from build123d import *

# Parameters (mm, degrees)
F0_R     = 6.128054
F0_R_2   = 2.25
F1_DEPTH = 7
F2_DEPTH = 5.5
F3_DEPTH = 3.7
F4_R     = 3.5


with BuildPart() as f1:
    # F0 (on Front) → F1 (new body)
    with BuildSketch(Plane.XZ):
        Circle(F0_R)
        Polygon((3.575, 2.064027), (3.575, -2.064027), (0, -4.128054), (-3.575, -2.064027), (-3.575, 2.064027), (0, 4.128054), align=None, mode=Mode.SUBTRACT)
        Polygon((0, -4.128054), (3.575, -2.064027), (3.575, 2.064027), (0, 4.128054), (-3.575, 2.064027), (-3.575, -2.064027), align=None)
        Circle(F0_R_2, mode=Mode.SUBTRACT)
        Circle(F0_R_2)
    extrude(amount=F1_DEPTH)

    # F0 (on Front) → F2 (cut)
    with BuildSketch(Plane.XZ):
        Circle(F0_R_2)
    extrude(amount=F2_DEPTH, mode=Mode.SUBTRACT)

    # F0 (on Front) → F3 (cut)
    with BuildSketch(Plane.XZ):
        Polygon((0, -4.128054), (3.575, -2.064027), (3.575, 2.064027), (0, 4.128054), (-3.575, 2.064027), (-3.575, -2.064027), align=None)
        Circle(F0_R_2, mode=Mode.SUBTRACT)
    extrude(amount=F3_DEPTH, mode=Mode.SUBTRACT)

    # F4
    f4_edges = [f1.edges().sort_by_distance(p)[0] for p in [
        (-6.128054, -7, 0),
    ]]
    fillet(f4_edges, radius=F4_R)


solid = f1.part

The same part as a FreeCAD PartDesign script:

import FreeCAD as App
import Part
import Sketcher
Q = App.Units.Quantity


def edges_at(feature, points):
    """Names of the edges that pass closest to the given points."""
    edges = feature.Shape.Edges
    near = lambda p: min(range(len(edges)), key=lambda i: edges[i].distToShape(Part.Vertex(*p))[0])
    return sorted({f"Edge{near(p) + 1}" for p in points})

doc = App.newDocument("Part")
body = doc.addObject("PartDesign::Body", "Body")

# Sketch on XZ plane
sketch1 = body.newObject("Sketcher::SketchObject", "Sketch")
sketch1.AttachmentSupport = (doc.getObject("XZ_Plane"), [""])
sketch1.MapMode = "FlatFace"
sketch1.addGeometry(Part.Circle(App.Vector(0, 0, 0), App.Vector(0, 0, 1), 6), False)
sketch1.addConstraint([
    Sketcher.Constraint("Coincident", 0, 3, -1, 1),
    Sketcher.Constraint("Diameter", 0, 12.256108),
])
pad1 = body.newObject("PartDesign::Pad", "Pad")
pad1.Profile = sketch1
pad1.Length = 7

# Sketch on XZ plane
sketch2 = body.newObject("Sketcher::SketchObject", "Sketch001")
sketch2.AttachmentSupport = (doc.getObject("XZ_Plane"), [""])
sketch2.MapMode = "FlatFace"
sketch2.addGeometry(Part.Circle(App.Vector(0, 0, 0), App.Vector(0, 0, 1), 2.2), False)
sketch2.addConstraint([
    Sketcher.Constraint("Coincident", 0, 3, -1, 1),
    Sketcher.Constraint("Diameter", 0, 4.5),
])
pocket1 = body.newObject("PartDesign::Pocket", "Pocket")
pocket1.Profile = sketch2
pocket1.Length = 5.5
pocket1.Reversed = True

# Sketch on XZ plane
sketch3 = body.newObject("Sketcher::SketchObject", "Sketch002")
sketch3.AttachmentSupport = (doc.getObject("XZ_Plane"), [""])
sketch3.MapMode = "FlatFace"
sketch3.addGeometry([
    Part.LineSegment(App.Vector(0, -4.1, 0), App.Vector(3.6, -2.1, 0)),  # 0
    Part.LineSegment(App.Vector(3.6, -2.1, 0), App.Vector(3.6, 2.1, 0)),  # 1
    Part.LineSegment(App.Vector(3.6, 2.1, 0), App.Vector(0, 4.1, 0)),  # 2
    Part.LineSegment(App.Vector(0, 4.1, 0), App.Vector(-3.6, 2.1, 0)),  # 3
    Part.LineSegment(App.Vector(-3.6, 2.1, 0), App.Vector(-3.6, -2.1, 0)),  # 4
    Part.LineSegment(App.Vector(-3.6, -2.1, 0), App.Vector(0, -4.1, 0)),  # 5
    Part.Circle(App.Vector(0, 0, 0), App.Vector(0, 0, 1), 2.2),  # 6
], False)
sketch3.addConstraint([
    Sketcher.Constraint("Coincident", 0, 2, 1, 1),
    Sketcher.Constraint("Coincident", 1, 2, 2, 1),
    Sketcher.Constraint("Coincident", 2, 2, 3, 1),
    Sketcher.Constraint("Coincident", 3, 2, 4, 1),
    Sketcher.Constraint("Coincident", 4, 2, 5, 1),
    Sketcher.Constraint("Coincident", 5, 2, 0, 1),
    Sketcher.Constraint("Vertical", 1),
    Sketcher.Constraint("Vertical", 4),
    Sketcher.Constraint("Coincident", 6, 3, -1, 1),
    Sketcher.Constraint("Symmetric", 0, 2, 3, 2, -1, 1),
    Sketcher.Constraint("Symmetric", 2, 2, 5, 2, -1, 1),
    Sketcher.Constraint("PointOnObject", 2, 2, -2),
    Sketcher.Constraint("Parallel", 2, 5),
    Sketcher.Constraint("Horizontal", 1, 2, 3, 2),
    Sketcher.Constraint("Diameter", 6, 4.5),
    Sketcher.Constraint("Angle", 0, Q("29.999997 deg")),
    Sketcher.Constraint("DistanceX", 3, 2, 1, 2, 7.15),
    Sketcher.Constraint("DistanceY", 1, 1, 1, 2, 4.128054),
])
pocket2 = body.newObject("PartDesign::Pocket", "Pocket001")
pocket2.Profile = sketch3
pocket2.Length = 3.7
pocket2.Reversed = True
doc.recompute()

fillet = body.newObject("PartDesign::Fillet", "Fillet")
fillet.Base = (pocket2, edges_at(pocket2, [(-6.128, -7, 0)]))
fillet.Radius = 3.5

doc.recompute()
